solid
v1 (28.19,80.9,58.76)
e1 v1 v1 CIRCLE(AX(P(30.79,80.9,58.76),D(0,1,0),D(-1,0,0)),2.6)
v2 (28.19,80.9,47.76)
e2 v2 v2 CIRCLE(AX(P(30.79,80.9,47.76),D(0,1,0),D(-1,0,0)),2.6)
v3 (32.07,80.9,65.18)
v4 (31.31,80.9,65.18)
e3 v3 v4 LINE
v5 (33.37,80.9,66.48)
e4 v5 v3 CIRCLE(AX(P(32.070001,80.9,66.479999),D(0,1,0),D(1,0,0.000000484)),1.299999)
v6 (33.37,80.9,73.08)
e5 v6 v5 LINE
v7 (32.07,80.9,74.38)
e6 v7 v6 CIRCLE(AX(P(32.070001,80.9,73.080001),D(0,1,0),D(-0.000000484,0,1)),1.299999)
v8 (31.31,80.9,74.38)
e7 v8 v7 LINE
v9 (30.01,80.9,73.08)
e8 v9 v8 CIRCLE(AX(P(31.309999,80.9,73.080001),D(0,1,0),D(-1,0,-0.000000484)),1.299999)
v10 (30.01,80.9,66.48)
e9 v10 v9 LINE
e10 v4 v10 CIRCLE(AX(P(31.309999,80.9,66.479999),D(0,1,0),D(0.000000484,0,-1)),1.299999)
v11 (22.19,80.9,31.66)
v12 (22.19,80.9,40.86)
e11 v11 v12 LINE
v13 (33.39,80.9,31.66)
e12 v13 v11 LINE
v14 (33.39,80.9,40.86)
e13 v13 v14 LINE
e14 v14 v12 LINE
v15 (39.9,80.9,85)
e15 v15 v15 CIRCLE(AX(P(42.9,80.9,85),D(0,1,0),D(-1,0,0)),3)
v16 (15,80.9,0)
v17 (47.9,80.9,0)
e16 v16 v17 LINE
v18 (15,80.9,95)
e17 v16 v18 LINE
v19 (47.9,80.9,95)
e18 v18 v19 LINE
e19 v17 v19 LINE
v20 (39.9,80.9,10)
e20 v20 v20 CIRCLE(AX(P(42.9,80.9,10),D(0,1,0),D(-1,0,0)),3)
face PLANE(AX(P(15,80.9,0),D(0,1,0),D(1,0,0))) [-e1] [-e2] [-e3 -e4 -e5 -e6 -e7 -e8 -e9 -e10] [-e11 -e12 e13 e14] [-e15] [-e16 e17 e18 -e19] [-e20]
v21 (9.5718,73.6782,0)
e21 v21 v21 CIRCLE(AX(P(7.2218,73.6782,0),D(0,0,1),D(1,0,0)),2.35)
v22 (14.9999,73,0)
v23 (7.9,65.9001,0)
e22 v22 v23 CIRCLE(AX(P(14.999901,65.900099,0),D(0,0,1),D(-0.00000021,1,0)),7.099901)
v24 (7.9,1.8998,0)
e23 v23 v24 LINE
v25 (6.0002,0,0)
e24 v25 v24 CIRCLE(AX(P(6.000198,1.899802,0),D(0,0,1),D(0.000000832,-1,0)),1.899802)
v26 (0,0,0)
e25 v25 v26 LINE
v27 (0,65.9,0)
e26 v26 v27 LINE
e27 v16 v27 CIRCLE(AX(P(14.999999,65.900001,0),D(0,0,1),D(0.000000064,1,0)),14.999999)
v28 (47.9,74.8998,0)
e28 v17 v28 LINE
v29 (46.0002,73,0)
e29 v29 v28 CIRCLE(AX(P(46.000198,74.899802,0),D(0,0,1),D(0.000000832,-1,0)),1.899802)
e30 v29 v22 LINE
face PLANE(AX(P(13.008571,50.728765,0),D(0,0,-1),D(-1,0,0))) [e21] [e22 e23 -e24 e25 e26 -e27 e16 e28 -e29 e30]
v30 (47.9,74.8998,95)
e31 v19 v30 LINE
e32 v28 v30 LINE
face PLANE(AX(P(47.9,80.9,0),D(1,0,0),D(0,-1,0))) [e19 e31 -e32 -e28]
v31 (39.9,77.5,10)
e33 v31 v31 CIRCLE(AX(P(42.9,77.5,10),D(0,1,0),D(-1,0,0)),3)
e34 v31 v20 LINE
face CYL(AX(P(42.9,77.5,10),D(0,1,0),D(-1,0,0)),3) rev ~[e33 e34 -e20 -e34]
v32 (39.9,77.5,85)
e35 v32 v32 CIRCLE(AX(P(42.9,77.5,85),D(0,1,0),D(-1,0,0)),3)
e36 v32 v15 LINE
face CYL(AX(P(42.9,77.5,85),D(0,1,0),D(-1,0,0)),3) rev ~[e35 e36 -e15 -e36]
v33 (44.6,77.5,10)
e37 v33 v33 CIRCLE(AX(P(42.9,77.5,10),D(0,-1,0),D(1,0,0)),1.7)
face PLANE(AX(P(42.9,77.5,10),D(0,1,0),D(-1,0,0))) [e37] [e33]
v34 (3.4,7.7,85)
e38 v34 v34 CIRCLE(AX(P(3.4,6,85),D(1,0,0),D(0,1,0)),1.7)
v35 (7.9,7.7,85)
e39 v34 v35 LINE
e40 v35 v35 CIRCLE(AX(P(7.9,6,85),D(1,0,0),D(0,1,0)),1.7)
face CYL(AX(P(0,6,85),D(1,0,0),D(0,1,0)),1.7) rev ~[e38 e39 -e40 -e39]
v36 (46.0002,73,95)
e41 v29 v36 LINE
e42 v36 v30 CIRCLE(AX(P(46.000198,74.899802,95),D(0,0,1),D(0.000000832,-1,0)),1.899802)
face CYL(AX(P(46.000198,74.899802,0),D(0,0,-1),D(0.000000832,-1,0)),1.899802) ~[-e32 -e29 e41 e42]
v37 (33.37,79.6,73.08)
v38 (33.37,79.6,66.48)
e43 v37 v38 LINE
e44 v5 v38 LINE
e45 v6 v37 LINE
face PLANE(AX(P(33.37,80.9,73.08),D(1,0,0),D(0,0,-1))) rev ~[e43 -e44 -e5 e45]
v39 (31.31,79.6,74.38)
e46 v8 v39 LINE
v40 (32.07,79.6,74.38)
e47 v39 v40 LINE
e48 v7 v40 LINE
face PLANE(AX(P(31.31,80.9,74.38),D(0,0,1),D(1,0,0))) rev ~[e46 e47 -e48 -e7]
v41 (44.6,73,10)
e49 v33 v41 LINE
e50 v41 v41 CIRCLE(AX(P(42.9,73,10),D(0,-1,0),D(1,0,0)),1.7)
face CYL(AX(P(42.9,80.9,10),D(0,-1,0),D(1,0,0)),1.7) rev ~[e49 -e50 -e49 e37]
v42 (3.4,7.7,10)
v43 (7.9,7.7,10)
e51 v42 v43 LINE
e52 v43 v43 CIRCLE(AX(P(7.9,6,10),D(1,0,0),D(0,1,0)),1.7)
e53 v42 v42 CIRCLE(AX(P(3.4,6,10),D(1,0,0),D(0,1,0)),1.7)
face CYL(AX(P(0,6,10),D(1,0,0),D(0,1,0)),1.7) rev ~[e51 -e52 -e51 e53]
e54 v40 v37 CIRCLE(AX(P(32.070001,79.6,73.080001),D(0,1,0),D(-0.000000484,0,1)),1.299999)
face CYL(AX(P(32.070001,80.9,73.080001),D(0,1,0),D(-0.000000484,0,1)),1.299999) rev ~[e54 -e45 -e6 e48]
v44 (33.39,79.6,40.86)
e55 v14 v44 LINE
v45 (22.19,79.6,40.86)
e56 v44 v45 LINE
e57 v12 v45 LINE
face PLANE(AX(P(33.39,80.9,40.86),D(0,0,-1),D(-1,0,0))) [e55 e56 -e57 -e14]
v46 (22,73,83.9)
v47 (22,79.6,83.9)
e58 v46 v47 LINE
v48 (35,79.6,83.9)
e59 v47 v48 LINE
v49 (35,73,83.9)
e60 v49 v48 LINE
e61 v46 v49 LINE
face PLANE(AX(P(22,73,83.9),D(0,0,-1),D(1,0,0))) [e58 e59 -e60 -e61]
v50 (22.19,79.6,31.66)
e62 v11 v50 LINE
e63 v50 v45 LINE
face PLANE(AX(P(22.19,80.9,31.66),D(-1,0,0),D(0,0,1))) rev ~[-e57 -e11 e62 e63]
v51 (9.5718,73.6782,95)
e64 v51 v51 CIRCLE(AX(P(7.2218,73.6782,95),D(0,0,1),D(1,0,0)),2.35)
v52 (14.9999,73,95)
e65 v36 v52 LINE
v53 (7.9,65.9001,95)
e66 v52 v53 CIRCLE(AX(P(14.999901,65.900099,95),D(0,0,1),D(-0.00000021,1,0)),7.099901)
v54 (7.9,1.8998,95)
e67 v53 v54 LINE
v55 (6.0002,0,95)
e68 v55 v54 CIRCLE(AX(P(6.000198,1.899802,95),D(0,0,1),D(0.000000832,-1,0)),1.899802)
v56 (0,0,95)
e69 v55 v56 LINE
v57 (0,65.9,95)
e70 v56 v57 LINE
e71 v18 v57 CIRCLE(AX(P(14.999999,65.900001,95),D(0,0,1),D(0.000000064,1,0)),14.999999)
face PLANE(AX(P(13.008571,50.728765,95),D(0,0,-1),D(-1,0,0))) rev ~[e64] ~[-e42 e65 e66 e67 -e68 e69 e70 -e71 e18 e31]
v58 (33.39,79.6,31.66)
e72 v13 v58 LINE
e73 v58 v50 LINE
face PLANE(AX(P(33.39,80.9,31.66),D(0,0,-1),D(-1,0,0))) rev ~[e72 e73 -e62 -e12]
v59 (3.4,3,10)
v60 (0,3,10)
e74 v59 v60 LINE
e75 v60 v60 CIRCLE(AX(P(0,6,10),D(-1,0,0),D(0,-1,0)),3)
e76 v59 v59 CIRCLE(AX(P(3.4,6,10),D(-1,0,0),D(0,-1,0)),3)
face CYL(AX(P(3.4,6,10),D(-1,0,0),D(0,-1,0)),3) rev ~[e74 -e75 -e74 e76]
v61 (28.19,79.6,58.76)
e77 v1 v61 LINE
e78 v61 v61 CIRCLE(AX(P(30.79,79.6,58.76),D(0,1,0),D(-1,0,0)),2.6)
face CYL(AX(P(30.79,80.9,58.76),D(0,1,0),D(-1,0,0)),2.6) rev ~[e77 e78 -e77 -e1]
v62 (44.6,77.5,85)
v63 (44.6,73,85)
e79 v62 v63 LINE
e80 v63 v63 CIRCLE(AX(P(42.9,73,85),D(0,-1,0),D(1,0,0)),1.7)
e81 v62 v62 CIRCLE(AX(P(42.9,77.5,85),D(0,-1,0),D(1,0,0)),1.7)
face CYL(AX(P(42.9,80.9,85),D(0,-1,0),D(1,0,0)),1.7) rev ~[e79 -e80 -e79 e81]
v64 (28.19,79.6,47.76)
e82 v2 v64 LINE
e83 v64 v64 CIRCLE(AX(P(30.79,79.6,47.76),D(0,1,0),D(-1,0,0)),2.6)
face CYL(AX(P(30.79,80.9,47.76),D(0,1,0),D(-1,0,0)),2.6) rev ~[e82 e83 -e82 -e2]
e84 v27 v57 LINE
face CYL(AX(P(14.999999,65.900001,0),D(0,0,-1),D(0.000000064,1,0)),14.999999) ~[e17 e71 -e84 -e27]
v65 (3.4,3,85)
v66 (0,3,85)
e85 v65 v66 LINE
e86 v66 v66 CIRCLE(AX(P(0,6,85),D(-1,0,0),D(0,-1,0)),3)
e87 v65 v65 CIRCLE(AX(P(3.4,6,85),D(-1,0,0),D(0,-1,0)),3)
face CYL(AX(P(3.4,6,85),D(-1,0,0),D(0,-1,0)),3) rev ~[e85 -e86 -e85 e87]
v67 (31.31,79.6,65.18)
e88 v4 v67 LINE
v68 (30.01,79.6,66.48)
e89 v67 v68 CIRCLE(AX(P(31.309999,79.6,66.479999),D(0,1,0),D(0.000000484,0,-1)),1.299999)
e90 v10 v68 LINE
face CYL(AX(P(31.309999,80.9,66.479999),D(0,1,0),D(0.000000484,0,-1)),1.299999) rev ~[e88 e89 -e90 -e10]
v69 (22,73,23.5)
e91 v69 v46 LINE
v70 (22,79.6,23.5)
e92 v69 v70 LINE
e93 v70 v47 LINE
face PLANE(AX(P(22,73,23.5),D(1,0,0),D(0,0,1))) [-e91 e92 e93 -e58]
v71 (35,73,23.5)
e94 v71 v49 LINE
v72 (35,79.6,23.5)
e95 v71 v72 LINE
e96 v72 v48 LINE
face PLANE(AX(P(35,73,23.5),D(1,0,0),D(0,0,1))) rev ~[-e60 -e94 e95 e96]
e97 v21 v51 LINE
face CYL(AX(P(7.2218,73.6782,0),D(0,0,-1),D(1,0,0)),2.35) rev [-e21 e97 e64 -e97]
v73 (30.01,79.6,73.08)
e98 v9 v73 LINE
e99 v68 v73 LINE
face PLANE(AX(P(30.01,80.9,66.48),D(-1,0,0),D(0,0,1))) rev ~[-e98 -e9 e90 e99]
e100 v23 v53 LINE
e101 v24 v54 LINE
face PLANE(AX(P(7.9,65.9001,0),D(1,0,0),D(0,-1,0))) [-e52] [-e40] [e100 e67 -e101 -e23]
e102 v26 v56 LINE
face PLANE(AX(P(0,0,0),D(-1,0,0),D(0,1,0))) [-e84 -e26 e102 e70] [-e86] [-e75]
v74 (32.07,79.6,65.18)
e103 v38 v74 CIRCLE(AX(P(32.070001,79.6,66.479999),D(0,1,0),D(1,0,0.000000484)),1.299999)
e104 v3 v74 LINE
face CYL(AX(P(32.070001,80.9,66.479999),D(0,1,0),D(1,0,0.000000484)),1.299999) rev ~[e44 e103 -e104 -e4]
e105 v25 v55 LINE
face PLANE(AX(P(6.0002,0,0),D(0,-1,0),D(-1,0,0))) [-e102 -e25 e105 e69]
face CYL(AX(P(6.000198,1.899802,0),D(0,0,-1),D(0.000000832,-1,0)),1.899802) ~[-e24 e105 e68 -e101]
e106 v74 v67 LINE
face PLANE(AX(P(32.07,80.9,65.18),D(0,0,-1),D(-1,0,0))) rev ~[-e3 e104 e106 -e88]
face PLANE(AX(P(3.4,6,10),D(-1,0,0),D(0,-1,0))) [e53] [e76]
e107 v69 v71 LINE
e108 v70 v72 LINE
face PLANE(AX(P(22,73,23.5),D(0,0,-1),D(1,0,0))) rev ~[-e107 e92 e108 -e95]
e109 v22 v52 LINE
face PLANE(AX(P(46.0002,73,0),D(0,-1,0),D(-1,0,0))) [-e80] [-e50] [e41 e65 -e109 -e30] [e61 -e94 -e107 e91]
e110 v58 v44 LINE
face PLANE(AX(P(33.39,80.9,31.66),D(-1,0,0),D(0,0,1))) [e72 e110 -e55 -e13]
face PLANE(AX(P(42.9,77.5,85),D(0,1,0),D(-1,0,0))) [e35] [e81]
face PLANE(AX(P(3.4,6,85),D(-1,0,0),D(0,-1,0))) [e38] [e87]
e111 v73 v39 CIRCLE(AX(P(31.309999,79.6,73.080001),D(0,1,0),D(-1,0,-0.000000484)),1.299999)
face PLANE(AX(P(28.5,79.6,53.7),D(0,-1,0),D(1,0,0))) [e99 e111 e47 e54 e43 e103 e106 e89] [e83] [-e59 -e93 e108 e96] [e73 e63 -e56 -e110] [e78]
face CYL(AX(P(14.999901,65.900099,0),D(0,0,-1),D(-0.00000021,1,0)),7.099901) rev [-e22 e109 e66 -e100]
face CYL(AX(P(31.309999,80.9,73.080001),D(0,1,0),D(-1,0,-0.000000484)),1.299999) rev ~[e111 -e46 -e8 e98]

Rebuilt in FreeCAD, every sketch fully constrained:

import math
import FreeCAD as App
import Part
import Sketcher

doc = App.newDocument("Part")
body = doc.addObject("PartDesign::Body", "Body")

# Sketch on XY plane
sketch1 = body.newObject("Sketcher::SketchObject", "Sketch")
sketch1.AttachmentSupport = (doc.getObject("XY_Plane"), [""])
sketch1.MapMode = "FlatFace"
sketch1.addGeometry([
    Part.LineSegment(App.Vector(0, 65.9, 0), App.Vector(0, 0, 0)),  # 0
    Part.LineSegment(App.Vector(0, 0, 0), App.Vector(6, 0, 0)),  # 1
    Part.ArcOfCircle(Part.Circle(App.Vector(6, 1.9, 0), App.Vector(0, 0, 1), 1.9), math.radians(-90), math.radians(0)),  # 2
    Part.LineSegment(App.Vector(7.9, 1.9, 0), App.Vector(7.9, 65.9, 0)),  # 3
    Part.ArcOfCircle(Part.Circle(App.Vector(15, 65.9, 0), App.Vector(0, 0, 1), 7.1), math.radians(90), math.radians(180)),  # 4
    Part.LineSegment(App.Vector(15, 73, 0), App.Vector(46, 73, 0)),  # 5
    Part.ArcOfCircle(Part.Circle(App.Vector(46, 74.9, 0), App.Vector(0, 0, 1), 1.9), math.radians(-90), math.radians(0)),  # 6
    Part.LineSegment(App.Vector(47.9, 74.9, 0), App.Vector(47.9, 80.9, 0)),  # 7
    Part.LineSegment(App.Vector(47.9, 80.9, 0), App.Vector(15, 80.9, 0)),  # 8
    Part.ArcOfCircle(Part.Circle(App.Vector(15, 65.9, 0), App.Vector(0, 0, 1), 15), math.radians(90), math.radians(180)),  # 9
    Part.Circle(App.Vector(7.2, 73.7, 0), App.Vector(0, 0, 1), 2.4),  # 10
], False)
sketch1.addConstraint([
    Sketcher.Constraint("Coincident", 0, 2, 1, 1),
    Sketcher.Constraint("Tangent", 1, 2, 2, 1),
    Sketcher.Constraint("Tangent", 2, 2, 3, 1),
    Sketcher.Constraint("Tangent", 3, 2, 4, 2),
    Sketcher.Constraint("Tangent", 4, 1, 5, 1),
    Sketcher.Constraint("Tangent", 5, 2, 6, 1),
    Sketcher.Constraint("Tangent", 6, 2, 7, 1),
    Sketcher.Constraint("Coincident", 7, 2, 8, 1),
    Sketcher.Constraint("Tangent", 8, 2, 9, 1),
    Sketcher.Constraint("Tangent", 9, 2, 0, 1),
    Sketcher.Constraint("Vertical", 0),
    Sketcher.Constraint("Horizontal", 1),
    Sketcher.Constraint("Vertical", 3),
    Sketcher.Constraint("Horizontal", 5),
    Sketcher.Constraint("Vertical", 7),
    Sketcher.Constraint("Horizontal", 8),
    Sketcher.Constraint("Coincident", 0, 2, -1, 1),
    Sketcher.Constraint("Equal", 2, 6),
    Sketcher.Constraint("Equal", 1, 7),
    Sketcher.Constraint("Radius", 9, 14.999999),
    Sketcher.Constraint("Diameter", 10, 4.7),
    Sketcher.Constraint("DistanceX", 8, 2, 8, 1, 32.9),
    Sketcher.Constraint("DistanceY", 0, 2, 0, 1, 65.9),
    Sketcher.Constraint("DistanceY", -1, 1, 4, 1, 73.0),
    Sketcher.Constraint("Radius", 2, 1.899802),
    Sketcher.Constraint("Radius", 4, 7.099901),
    Sketcher.Constraint("DistanceX", -1, 1, 10, 3, 7.2218),
    Sketcher.Constraint("DistanceY", -1, 1, 10, 3, 73.6782),
])
pad1 = body.newObject("PartDesign::Pad", "Pad")
pad1.Profile = sketch1
pad1.Length = 95

# Sketch on YZ plane
sketch2 = body.newObject("Sketcher::SketchObject", "Sketch001")
sketch2.AttachmentSupport = (doc.getObject("YZ_Plane"), [""])
sketch2.MapMode = "FlatFace"
sketch2.addGeometry([
    Part.Circle(App.Vector(6, 10, 0), App.Vector(0, 0, 1), 1.7),
    Part.Circle(App.Vector(6, 85, 0), App.Vector(0, 0, 1), 1.7),
], False)
sketch2.addConstraint([
    Sketcher.Constraint("Equal", 0, 1),
    Sketcher.Constraint("Vertical", 0, 3, 1, 3),
    Sketcher.Constraint("Diameter", 0, 3.4),
    Sketcher.Constraint("DistanceX", -1, 1, 0, 3, 6.0),
    Sketcher.Constraint("DistanceY", -1, 1, 0, 3, 10.0),
    Sketcher.Constraint("DistanceY", -1, 1, 1, 3, 85.0),
])
doc.recompute()
hole = body.newObject("PartDesign::Hole", "Hole")
hole.Profile = sketch2
hole.ThreadType = "None"
hole.Diameter = 3.4
hole.DepthType = "ThroughAll"
hole.HoleCutType = "Counterbore"
hole.HoleCutDiameter = 6
hole.HoleCutDepth = 3.4
hole.Reversed = True

# Sketch on XZ plane
sketch3 = body.newObject("Sketcher::SketchObject", "Sketch002")
sketch3.AttachmentSupport = (doc.getObject("XZ_Plane"), [""])
sketch3.MapMode = "FlatFace"
sketch3.AttachmentOffset = App.Placement(App.Vector(0, 0, -80.9), App.Rotation())
sketch3.addGeometry([
    Part.Circle(App.Vector(42.9, 10, 0), App.Vector(0, 0, 1), 1.7),
    Part.Circle(App.Vector(42.9, 85, 0), App.Vector(0, 0, 1), 1.7),
], False)
sketch3.addConstraint([
    Sketcher.Constraint("Equal", 0, 1),
    Sketcher.Constraint("Vertical", 0, 3, 1, 3),
    Sketcher.Constraint("Diameter", 0, 3.4),
    Sketcher.Constraint("DistanceY", -1, 1, 0, 3, 10.0),
    Sketcher.Constraint("DistanceY", -1, 1, 1, 3, 85.0),
    Sketcher.Constraint("DistanceX", -1, 1, 0, 3, 42.9),
])
doc.recompute()
hole2 = body.newObject("PartDesign::Hole", "Hole001")
hole2.Profile = sketch3
hole2.ThreadType = "None"
hole2.Diameter = 3.4
hole2.DepthType = "ThroughAll"
hole2.HoleCutType = "Counterbore"
hole2.HoleCutDiameter = 6
hole2.HoleCutDepth = 3.4
hole2.Reversed = True

# Sketch on XZ plane
sketch4 = body.newObject("Sketcher::SketchObject", "Sketch003")
sketch4.AttachmentSupport = (doc.getObject("XZ_Plane"), [""])
sketch4.MapMode = "FlatFace"
sketch4.AttachmentOffset = App.Placement(App.Vector(0, 0, -80.9), App.Rotation())
sketch4.addGeometry([
    Part.Circle(App.Vector(30.8, 58.8, 0), App.Vector(0, 0, 1), 2.6),  # 0
    Part.Circle(App.Vector(30.8, 47.8, 0), App.Vector(0, 0, 1), 2.6),  # 1
    Part.LineSegment(App.Vector(31.3, 74.4, 0), App.Vector(32.1, 74.4, 0)),  # 2
    Part.ArcOfCircle(Part.Circle(App.Vector(32.1, 73.1, 0), App.Vector(0, 0, 1), 1.3), math.radians(0), math.radians(90)),  # 3
    Part.LineSegment(App.Vector(33.4, 73.1, 0), App.Vector(33.4, 66.5, 0)),  # 4
    Part.ArcOfCircle(Part.Circle(App.Vector(32.1, 66.5, 0), App.Vector(0, 0, 1), 1.3), math.radians(-90), math.radians(0)),  # 5
    Part.LineSegment(App.Vector(32.1, 65.2, 0), App.Vector(31.3, 65.2, 0)),  # 6
    Part.ArcOfCircle(Part.Circle(App.Vector(31.3, 66.5, 0), App.Vector(0, 0, 1), 1.3), math.radians(180), math.radians(270)),  # 7
    Part.LineSegment(App.Vector(30, 66.5, 0), App.Vector(30, 73.1, 0)),  # 8
    Part.ArcOfCircle(Part.Circle(App.Vector(31.3, 73.1, 0), App.Vector(0, 0, 1), 1.3), math.radians(90), math.radians(180)),  # 9
    Part.LineSegment(App.Vector(33.4, 40.9, 0), App.Vector(33.4, 31.7, 0)),  # 10
    Part.LineSegment(App.Vector(33.4, 31.7, 0), App.Vector(22.2, 31.7, 0)),  # 11
    Part.LineSegment(App.Vector(22.2, 31.7, 0), App.Vector(22.2, 40.9, 0)),  # 12
    Part.LineSegment(App.Vector(22.2, 40.9, 0), App.Vector(33.4, 40.9, 0)),  # 13
], False)
sketch4.addConstraint([
    Sketcher.Constraint("Tangent", 2, 2, 3, 2),
    Sketcher.Constraint("Tangent", 3, 1, 4, 1),
    Sketcher.Constraint("Tangent", 4, 2, 5, 2),
    Sketcher.Constraint("Tangent", 5, 1, 6, 1),
    Sketcher.Constraint("Tangent", 6, 2, 7, 2),
    Sketcher.Constraint("Tangent", 7, 1, 8, 1),
    Sketcher.Constraint("Tangent", 8, 2, 9, 2),
    Sketcher.Constraint("Tangent", 9, 1, 2, 1),
    Sketcher.Constraint("Coincident", 10, 2, 11, 1),
    Sketcher.Constraint("Coincident", 11, 2, 12, 1),
    Sketcher.Constraint("Coincident", 12, 2, 13, 1),
    Sketcher.Constraint("Coincident", 13, 2, 10, 1),
    Sketcher.Constraint("Horizontal", 2),
    Sketcher.Constraint("Vertical", 4),
    Sketcher.Constraint("Horizontal", 6),
    Sketcher.Constraint("Vertical", 8),
    Sketcher.Constraint("Vertical", 10),
    Sketcher.Constraint("Horizontal", 11),
    Sketcher.Constraint("Vertical", 12),
    Sketcher.Constraint("Horizontal", 13),
    Sketcher.Constraint("Equal", 0, 1),
    Sketcher.Constraint("Equal", 3, 5),
    Sketcher.Constraint("Equal", 5, 7),
    Sketcher.Constraint("Equal", 7, 9),
    Sketcher.Constraint("Vertical", 0, 3, 1, 3),
    Sketcher.Constraint("Diameter", 0, 5.2),
    Sketcher.Constraint("Radius", 3, 1.299999),
    Sketcher.Constraint("DistanceX", 11, 2, 11, 1, 11.2),
    Sketcher.Constraint("DistanceY", 4, 2, 4, 1, 6.6),
    Sketcher.Constraint("DistanceY", 10, 2, 10, 1, 9.2),
    Sketcher.Constraint("DistanceY", 1, 3, 0, 3, 11.0),
    Sketcher.Constraint("DistanceX", 2, 1, 2, 2, 0.76),
    Sketcher.Constraint("DistanceX", 1, 3, 10, 2, 2.6),
    Sketcher.Constraint("DistanceY", 10, 2, 1, 3, 16.1),
    Sketcher.Constraint("DistanceX", -1, 1, 0, 3, 30.79),
    Sketcher.Constraint("DistanceY", -1, 1, 0, 3, 58.76),
    Sketcher.Constraint("DistanceX", -1, 1, 3, 3, 32.070001),
    Sketcher.Constraint("DistanceY", -1, 1, 3, 3, 73.080001),
])
pocket1 = body.newObject("PartDesign::Pocket", "Pocket")
pocket1.Profile = sketch4
pocket1.Type = "ThroughAll"
pocket1.Reversed = True

# Sketch on XZ plane
sketch5 = body.newObject("Sketcher::SketchObject", "Sketch004")
sketch5.AttachmentSupport = (doc.getObject("XZ_Plane"), [""])
sketch5.MapMode = "FlatFace"
sketch5.AttachmentOffset = App.Placement(App.Vector(0, 0, -73), App.Rotation())
sketch5.addGeometry([
    Part.LineSegment(App.Vector(22, 84, 0), App.Vector(22, 24, 0)),
    Part.LineSegment(App.Vector(22, 24, 0), App.Vector(35, 24, 0)),
    Part.LineSegment(App.Vector(35, 24, 0), App.Vector(35, 84, 0)),
    Part.LineSegment(App.Vector(35, 84, 0), App.Vector(22, 84, 0)),
], False)
sketch5.addConstraint([
    Sketcher.Constraint("Coincident", 0, 2, 1, 1),
    Sketcher.Constraint("Coincident", 1, 2, 2, 1),
    Sketcher.Constraint("Coincident", 2, 2, 3, 1),
    Sketcher.Constraint("Coincident", 3, 2, 0, 1),
    Sketcher.Constraint("Vertical", 0),
    Sketcher.Constraint("Horizontal", 1),
    Sketcher.Constraint("Vertical", 2),
    Sketcher.Constraint("Horizontal", 3),
    Sketcher.Constraint("DistanceX", 1, 1, 1, 2, 13.0),
    Sketcher.Constraint("DistanceY", 0, 2, 0, 1, 60.4),
    Sketcher.Constraint("DistanceX", -1, 1, 0, 2, 22.0),
    Sketcher.Constraint("DistanceY", -1, 1, 0, 2, 23.5),
])
pocket2 = body.newObject("PartDesign::Pocket", "Pocket001")
pocket2.Profile = sketch5
pocket2.Length = 6.6

doc.recompute()
